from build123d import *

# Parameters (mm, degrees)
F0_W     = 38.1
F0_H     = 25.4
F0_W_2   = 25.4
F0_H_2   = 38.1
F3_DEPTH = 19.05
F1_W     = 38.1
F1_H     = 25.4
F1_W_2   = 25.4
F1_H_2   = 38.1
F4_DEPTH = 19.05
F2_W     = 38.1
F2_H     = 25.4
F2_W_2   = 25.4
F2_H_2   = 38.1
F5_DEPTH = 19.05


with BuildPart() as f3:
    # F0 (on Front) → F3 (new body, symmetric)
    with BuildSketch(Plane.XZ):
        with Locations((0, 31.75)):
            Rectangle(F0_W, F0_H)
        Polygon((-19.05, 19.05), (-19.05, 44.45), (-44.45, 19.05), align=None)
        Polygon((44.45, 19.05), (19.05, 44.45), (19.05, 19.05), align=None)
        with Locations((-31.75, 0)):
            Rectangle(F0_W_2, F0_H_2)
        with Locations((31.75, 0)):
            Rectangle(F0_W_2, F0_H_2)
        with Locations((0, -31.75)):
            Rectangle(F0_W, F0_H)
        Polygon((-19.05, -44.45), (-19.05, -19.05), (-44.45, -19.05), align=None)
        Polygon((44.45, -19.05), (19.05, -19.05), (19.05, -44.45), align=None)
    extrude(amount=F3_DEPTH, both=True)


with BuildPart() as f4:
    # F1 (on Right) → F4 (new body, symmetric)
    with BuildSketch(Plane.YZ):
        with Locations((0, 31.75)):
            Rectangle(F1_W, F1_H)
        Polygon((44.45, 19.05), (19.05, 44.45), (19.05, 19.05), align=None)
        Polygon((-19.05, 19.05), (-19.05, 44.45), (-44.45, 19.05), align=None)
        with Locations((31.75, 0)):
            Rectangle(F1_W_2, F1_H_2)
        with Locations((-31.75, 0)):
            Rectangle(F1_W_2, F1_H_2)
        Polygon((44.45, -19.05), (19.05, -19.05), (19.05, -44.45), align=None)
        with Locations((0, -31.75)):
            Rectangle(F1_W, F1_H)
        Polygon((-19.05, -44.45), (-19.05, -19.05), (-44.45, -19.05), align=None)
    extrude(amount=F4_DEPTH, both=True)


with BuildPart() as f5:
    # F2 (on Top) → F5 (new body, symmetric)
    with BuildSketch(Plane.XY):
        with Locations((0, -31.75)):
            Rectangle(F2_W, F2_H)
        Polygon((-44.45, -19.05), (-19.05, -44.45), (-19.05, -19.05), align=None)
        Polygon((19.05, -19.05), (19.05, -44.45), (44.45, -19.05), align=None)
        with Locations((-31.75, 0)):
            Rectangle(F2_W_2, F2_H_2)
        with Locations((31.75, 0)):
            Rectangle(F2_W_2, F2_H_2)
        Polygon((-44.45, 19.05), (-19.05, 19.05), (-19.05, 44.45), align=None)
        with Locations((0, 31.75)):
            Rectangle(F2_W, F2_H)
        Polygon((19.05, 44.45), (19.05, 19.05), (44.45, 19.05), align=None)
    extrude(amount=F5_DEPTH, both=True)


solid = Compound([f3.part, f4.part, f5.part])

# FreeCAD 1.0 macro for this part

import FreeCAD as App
import Part
import Sketcher
from FreeCAD import Vector
Q = App.Units.Quantity

doc = App.newDocument("Part")
body = doc.addObject("PartDesign::Body", "Body")

sketch1 = doc.addObject("Sketcher::SketchObject", "Sketch")
body.addObject(sketch1)
sketch1.AttachmentSupport = (doc.XZ_Plane, [""])
sketch1.MapMode = "FlatFace"
sketch1.addGeometry([
    Part.LineSegment(Vector(-19, -44, 0), Vector(19, -44, 0)),
    Part.LineSegment(Vector(19, -44, 0), Vector(44, -19, 0)),
    Part.LineSegment(Vector(44, -19, 0), Vector(44, 19, 0)),
    Part.LineSegment(Vector(44, 19, 0), Vector(19, 44, 0)),
    Part.LineSegment(Vector(19, 44, 0), Vector(-19, 44, 0)),
    Part.LineSegment(Vector(-19, 44, 0), Vector(-44, 19, 0)),
    Part.LineSegment(Vector(-44, 19, 0), Vector(-44, -19, 0)),
    Part.LineSegment(Vector(-44, -19, 0), Vector(-19, -44, 0)),
    Part.LineSegment(Vector(19, -19, 0), Vector(-19, -19, 0)),
    Part.LineSegment(Vector(-19, -19, 0), Vector(-19, 19, 0)),
    Part.LineSegment(Vector(-19, 19, 0), Vector(19, 19, 0)),
    Part.LineSegment(Vector(19, 19, 0), Vector(19, -19, 0)),
], False)
sketch1.addConstraint([
    Sketcher.Constraint("Coincident", 0, 2, 1, 1),
    Sketcher.Constraint("Coincident", 1, 2, 2, 1),
    Sketcher.Constraint("Coincident", 2, 2, 3, 1),
    Sketcher.Constraint("Coincident", 3, 2, 4, 1),
    Sketcher.Constraint("Coincident", 4, 2, 5, 1),
    Sketcher.Constraint("Coincident", 5, 2, 6, 1),
    Sketcher.Constraint("Coincident", 6, 2, 7, 1),
    Sketcher.Constraint("Coincident", 7, 2, 0, 1),
    Sketcher.Constraint("Coincident", 8, 2, 9, 1),
    Sketcher.Constraint("Coincident", 9, 2, 10, 1),
    Sketcher.Constraint("Coincident", 10, 2, 11, 1),
    Sketcher.Constraint("Coincident", 11, 2, 8, 1),
    Sketcher.Constraint("Horizontal", 0),
    Sketcher.Constraint("Vertical", 2),
    Sketcher.Constraint("Horizontal", 4),
    Sketcher.Constraint("Vertical", 6),
    Sketcher.Constraint("Horizontal", 8),
    Sketcher.Constraint("Vertical", 9),
    Sketcher.Constraint("Horizontal", 10),
    Sketcher.Constraint("Vertical", 11),
    Sketcher.Constraint("Symmetric", 0, 2, 4, 2, -1, 1),
    Sketcher.Constraint("Symmetric", 1, 2, 5, 2, -1, 1),
    Sketcher.Constraint("Symmetric", 8, 2, 10, 2, -1, 1),
    Sketcher.Constraint("Perpendicular", 1, 3),
    Sketcher.Constraint("Perpendicular", 5, 7),
    Sketcher.Constraint("Horizontal", 2, 2, 5, 2),
    Sketcher.Constraint("Horizontal", 1, 2, 6, 2),
    Sketcher.Constraint("Horizontal", 6, 2, 8, 2),
    Sketcher.Constraint("Vertical", 0, 2, 3, 2),
    Sketcher.Constraint("Vertical", 7, 2, 8, 2),
    Sketcher.Constraint("Equal", 10, 2),
    Sketcher.Constraint("DistanceX", 0, 1, 0, 2, Q("1.5 in")),
    Sketcher.Constraint("DistanceX", 0, 2, 1, 2, Q("1 in")),
])
pad1 = doc.addObject("PartDesign::Pad", "Pad")
body.addObject(pad1)
pad1.Profile = sketch1
pad1.Length = Q("1.5 in")
pad1.Midplane = True
body2 = doc.addObject("PartDesign::Body", "Body001")

sketch2 = doc.addObject("Sketcher::SketchObject", "Sketch001")
body2.addObject(sketch2)
sketch2.AttachmentSupport = (doc.getObject("YZ_Plane001"), [""])
sketch2.MapMode = "FlatFace"
sketch2.addGeometry([
    Part.LineSegment(Vector(-44, 19, 0), Vector(-44, -19, 0)),
    Part.LineSegment(Vector(-44, -19, 0), Vector(-19, -44, 0)),
    Part.LineSegment(Vector(-19, -44, 0), Vector(19, -44, 0)),
    Part.LineSegment(Vector(19, -44, 0), Vector(44, -19, 0)),
    Part.LineSegment(Vector(44, -19, 0), Vector(44, 19, 0)),
    Part.LineSegment(Vector(44, 19, 0), Vector(19, 44, 0)),
    Part.LineSegment(Vector(19, 44, 0), Vector(-19, 44, 0)),
    Part.LineSegment(Vector(-19, 44, 0), Vector(-44, 19, 0)),
    Part.LineSegment(Vector(19, -19, 0), Vector(-19, -19, 0)),
    Part.LineSegment(Vector(-19, -19, 0), Vector(-19, 19, 0)),
    Part.LineSegment(Vector(-19, 19, 0), Vector(19, 19, 0)),
    Part.LineSegment(Vector(19, 19, 0), Vector(19, -19, 0)),
], False)
sketch2.addConstraint([
    Sketcher.Constraint("Coincident", 0, 2, 1, 1),
    Sketcher.Constraint("Coincident", 1, 2, 2, 1),
    Sketcher.Constraint("Coincident", 2, 2, 3, 1),
    Sketcher.Constraint("Coincident", 3, 2, 4, 1),
    Sketcher.Constraint("Coincident", 4, 2, 5, 1),
    Sketcher.Constraint("Coincident", 5, 2, 6, 1),
    Sketcher.Constraint("Coincident", 6, 2, 7, 1),
    Sketcher.Constraint("Coincident", 7, 2, 0, 1),
    Sketcher.Constraint("Coincident", 8, 2, 9, 1),
    Sketcher.Constraint("Coincident", 9, 2, 10, 1),
    Sketcher.Constraint("Coincident", 10, 2, 11, 1),
    Sketcher.Constraint("Coincident", 11, 2, 8, 1),
    Sketcher.Constraint("Vertical", 0),
    Sketcher.Constraint("Horizontal", 2),
    Sketcher.Constraint("Vertical", 4),
    Sketcher.Constraint("Horizontal", 6),
    Sketcher.Constraint("Horizontal", 8),
    Sketcher.Constraint("Vertical", 9),
    Sketcher.Constraint("Horizontal", 10),
    Sketcher.Constraint("Vertical", 11),
    Sketcher.Constraint("Symmetric", 0, 2, 4, 2, -1, 1),
    Sketcher.Constraint("Symmetric", 1, 2, 5, 2, -1, 1),
    Sketcher.Constraint("Symmetric", 8, 2, 10, 2, -1, 1),
    Sketcher.Constraint("Perpendicular", 1, 3),
    Sketcher.Constraint("Perpendicular", 5, 7),
    Sketcher.Constraint("Horizontal", 0, 2, 3, 2),
    Sketcher.Constraint("Horizontal", 4, 2, 7, 2),
    Sketcher.Constraint("Horizontal", 3, 2, 8, 2),
    Sketcher.Constraint("Vertical", 2, 2, 5, 2),
    Sketcher.Constraint("Vertical", 6, 2, 8, 2),
    Sketcher.Constraint("Equal", 10, 0),
    Sketcher.Constraint("DistanceX", 2, 1, 2, 2, Q("1.5 in")),
    Sketcher.Constraint("DistanceX", 0, 2, 1, 2, Q("1 in")),
])
pad2 = doc.addObject("PartDesign::Pad", "Pad001")
body2.addObject(pad2)
pad2.Profile = sketch2
pad2.Length = Q("1.5 in")
pad2.Midplane = True
body3 = doc.addObject("PartDesign::Body", "Body002")

sketch3 = doc.addObject("Sketcher::SketchObject", "Sketch002")
body3.addObject(sketch3)
sketch3.AttachmentSupport = (doc.getObject("XY_Plane002"), [""])
sketch3.MapMode = "FlatFace"
sketch3.addGeometry([
    Part.LineSegment(Vector(44, -19, 0), Vector(44, 19, 0)),
    Part.LineSegment(Vector(44, 19, 0), Vector(19, 44, 0)),
    Part.LineSegment(Vector(19, 44, 0), Vector(-19, 44, 0)),
    Part.LineSegment(Vector(-19, 44, 0), Vector(-44, 19, 0)),
    Part.LineSegment(Vector(-44, 19, 0), Vector(-44, -19, 0)),
    Part.LineSegment(Vector(-44, -19, 0), Vector(-19, -44, 0)),
    Part.LineSegment(Vector(-19, -44, 0), Vector(19, -44, 0)),
    Part.LineSegment(Vector(19, -44, 0), Vector(44, -19, 0)),
    Part.LineSegment(Vector(19, 19, 0), Vector(19, -19, 0)),
    Part.LineSegment(Vector(19, -19, 0), Vector(-19, -19, 0)),
    Part.LineSegment(Vector(-19, -19, 0), Vector(-19, 19, 0)),
    Part.LineSegment(Vector(-19, 19, 0), Vector(19, 19, 0)),
], False)
sketch3.addConstraint([
    Sketcher.Constraint("Coincident", 0, 2, 1, 1),
    Sketcher.Constraint("Coincident", 1, 2, 2, 1),
    Sketcher.Constraint("Coincident", 2, 2, 3, 1),
    Sketcher.Constraint("Coincident", 3, 2, 4, 1),
    Sketcher.Constraint("Coincident", 4, 2, 5, 1),
    Sketcher.Constraint("Coincident", 5, 2, 6, 1),
    Sketcher.Constraint("Coincident", 6, 2, 7, 1),
    Sketcher.Constraint("Coincident", 7, 2, 0, 1),
    Sketcher.Constraint("Coincident", 8, 2, 9, 1),
    Sketcher.Constraint("Coincident", 9, 2, 10, 1),
    Sketcher.Constraint("Coincident", 10, 2, 11, 1),
    Sketcher.Constraint("Coincident", 11, 2, 8, 1),
    Sketcher.Constraint("Vertical", 0),
    Sketcher.Constraint("Horizontal", 2),
    Sketcher.Constraint("Vertical", 4),
    Sketcher.Constraint("Horizontal", 6),
    Sketcher.Constraint("Vertical", 8),
    Sketcher.Constraint("Horizontal", 9),
    Sketcher.Constraint("Vertical", 10),
    Sketcher.Constraint("Horizontal", 11),
    Sketcher.Constraint("Symmetric", 0, 2, 4, 2, -1, 1),
    Sketcher.Constraint("Symmetric", 1, 2, 5, 2, -1, 1),
    Sketcher.Constraint("Symmetric", 8, 2, 10, 2, -1, 1),
    Sketcher.Constraint("Perpendicular", 1, 3),
    Sketcher.Constraint("Perpendicular", 5, 7),
    Sketcher.Constraint("Horizontal", 0, 2, 3, 2),
    Sketcher.Constraint("Horizontal", 4, 2, 7, 2),
    Sketcher.Constraint("Horizontal", 7, 2, 8, 2),
    Sketcher.Constraint("Vertical", 2, 2, 5, 2),
    Sketcher.Constraint("Vertical", 6, 2, 8, 2),
    Sketcher.Constraint("Equal", 11, 0),
    Sketcher.Constraint("DistanceX", 2, 2, 2, 1, Q("1.5 in")),
    Sketcher.Constraint("DistanceX", 1, 2, 0, 2, Q("1 in")),
])
pad3 = doc.addObject("PartDesign::Pad", "Pad002")
body3.addObject(pad3)
pad3.Profile = sketch3
pad3.Length = Q("1.5 in")
pad3.Midplane = True

doc.recompute()
